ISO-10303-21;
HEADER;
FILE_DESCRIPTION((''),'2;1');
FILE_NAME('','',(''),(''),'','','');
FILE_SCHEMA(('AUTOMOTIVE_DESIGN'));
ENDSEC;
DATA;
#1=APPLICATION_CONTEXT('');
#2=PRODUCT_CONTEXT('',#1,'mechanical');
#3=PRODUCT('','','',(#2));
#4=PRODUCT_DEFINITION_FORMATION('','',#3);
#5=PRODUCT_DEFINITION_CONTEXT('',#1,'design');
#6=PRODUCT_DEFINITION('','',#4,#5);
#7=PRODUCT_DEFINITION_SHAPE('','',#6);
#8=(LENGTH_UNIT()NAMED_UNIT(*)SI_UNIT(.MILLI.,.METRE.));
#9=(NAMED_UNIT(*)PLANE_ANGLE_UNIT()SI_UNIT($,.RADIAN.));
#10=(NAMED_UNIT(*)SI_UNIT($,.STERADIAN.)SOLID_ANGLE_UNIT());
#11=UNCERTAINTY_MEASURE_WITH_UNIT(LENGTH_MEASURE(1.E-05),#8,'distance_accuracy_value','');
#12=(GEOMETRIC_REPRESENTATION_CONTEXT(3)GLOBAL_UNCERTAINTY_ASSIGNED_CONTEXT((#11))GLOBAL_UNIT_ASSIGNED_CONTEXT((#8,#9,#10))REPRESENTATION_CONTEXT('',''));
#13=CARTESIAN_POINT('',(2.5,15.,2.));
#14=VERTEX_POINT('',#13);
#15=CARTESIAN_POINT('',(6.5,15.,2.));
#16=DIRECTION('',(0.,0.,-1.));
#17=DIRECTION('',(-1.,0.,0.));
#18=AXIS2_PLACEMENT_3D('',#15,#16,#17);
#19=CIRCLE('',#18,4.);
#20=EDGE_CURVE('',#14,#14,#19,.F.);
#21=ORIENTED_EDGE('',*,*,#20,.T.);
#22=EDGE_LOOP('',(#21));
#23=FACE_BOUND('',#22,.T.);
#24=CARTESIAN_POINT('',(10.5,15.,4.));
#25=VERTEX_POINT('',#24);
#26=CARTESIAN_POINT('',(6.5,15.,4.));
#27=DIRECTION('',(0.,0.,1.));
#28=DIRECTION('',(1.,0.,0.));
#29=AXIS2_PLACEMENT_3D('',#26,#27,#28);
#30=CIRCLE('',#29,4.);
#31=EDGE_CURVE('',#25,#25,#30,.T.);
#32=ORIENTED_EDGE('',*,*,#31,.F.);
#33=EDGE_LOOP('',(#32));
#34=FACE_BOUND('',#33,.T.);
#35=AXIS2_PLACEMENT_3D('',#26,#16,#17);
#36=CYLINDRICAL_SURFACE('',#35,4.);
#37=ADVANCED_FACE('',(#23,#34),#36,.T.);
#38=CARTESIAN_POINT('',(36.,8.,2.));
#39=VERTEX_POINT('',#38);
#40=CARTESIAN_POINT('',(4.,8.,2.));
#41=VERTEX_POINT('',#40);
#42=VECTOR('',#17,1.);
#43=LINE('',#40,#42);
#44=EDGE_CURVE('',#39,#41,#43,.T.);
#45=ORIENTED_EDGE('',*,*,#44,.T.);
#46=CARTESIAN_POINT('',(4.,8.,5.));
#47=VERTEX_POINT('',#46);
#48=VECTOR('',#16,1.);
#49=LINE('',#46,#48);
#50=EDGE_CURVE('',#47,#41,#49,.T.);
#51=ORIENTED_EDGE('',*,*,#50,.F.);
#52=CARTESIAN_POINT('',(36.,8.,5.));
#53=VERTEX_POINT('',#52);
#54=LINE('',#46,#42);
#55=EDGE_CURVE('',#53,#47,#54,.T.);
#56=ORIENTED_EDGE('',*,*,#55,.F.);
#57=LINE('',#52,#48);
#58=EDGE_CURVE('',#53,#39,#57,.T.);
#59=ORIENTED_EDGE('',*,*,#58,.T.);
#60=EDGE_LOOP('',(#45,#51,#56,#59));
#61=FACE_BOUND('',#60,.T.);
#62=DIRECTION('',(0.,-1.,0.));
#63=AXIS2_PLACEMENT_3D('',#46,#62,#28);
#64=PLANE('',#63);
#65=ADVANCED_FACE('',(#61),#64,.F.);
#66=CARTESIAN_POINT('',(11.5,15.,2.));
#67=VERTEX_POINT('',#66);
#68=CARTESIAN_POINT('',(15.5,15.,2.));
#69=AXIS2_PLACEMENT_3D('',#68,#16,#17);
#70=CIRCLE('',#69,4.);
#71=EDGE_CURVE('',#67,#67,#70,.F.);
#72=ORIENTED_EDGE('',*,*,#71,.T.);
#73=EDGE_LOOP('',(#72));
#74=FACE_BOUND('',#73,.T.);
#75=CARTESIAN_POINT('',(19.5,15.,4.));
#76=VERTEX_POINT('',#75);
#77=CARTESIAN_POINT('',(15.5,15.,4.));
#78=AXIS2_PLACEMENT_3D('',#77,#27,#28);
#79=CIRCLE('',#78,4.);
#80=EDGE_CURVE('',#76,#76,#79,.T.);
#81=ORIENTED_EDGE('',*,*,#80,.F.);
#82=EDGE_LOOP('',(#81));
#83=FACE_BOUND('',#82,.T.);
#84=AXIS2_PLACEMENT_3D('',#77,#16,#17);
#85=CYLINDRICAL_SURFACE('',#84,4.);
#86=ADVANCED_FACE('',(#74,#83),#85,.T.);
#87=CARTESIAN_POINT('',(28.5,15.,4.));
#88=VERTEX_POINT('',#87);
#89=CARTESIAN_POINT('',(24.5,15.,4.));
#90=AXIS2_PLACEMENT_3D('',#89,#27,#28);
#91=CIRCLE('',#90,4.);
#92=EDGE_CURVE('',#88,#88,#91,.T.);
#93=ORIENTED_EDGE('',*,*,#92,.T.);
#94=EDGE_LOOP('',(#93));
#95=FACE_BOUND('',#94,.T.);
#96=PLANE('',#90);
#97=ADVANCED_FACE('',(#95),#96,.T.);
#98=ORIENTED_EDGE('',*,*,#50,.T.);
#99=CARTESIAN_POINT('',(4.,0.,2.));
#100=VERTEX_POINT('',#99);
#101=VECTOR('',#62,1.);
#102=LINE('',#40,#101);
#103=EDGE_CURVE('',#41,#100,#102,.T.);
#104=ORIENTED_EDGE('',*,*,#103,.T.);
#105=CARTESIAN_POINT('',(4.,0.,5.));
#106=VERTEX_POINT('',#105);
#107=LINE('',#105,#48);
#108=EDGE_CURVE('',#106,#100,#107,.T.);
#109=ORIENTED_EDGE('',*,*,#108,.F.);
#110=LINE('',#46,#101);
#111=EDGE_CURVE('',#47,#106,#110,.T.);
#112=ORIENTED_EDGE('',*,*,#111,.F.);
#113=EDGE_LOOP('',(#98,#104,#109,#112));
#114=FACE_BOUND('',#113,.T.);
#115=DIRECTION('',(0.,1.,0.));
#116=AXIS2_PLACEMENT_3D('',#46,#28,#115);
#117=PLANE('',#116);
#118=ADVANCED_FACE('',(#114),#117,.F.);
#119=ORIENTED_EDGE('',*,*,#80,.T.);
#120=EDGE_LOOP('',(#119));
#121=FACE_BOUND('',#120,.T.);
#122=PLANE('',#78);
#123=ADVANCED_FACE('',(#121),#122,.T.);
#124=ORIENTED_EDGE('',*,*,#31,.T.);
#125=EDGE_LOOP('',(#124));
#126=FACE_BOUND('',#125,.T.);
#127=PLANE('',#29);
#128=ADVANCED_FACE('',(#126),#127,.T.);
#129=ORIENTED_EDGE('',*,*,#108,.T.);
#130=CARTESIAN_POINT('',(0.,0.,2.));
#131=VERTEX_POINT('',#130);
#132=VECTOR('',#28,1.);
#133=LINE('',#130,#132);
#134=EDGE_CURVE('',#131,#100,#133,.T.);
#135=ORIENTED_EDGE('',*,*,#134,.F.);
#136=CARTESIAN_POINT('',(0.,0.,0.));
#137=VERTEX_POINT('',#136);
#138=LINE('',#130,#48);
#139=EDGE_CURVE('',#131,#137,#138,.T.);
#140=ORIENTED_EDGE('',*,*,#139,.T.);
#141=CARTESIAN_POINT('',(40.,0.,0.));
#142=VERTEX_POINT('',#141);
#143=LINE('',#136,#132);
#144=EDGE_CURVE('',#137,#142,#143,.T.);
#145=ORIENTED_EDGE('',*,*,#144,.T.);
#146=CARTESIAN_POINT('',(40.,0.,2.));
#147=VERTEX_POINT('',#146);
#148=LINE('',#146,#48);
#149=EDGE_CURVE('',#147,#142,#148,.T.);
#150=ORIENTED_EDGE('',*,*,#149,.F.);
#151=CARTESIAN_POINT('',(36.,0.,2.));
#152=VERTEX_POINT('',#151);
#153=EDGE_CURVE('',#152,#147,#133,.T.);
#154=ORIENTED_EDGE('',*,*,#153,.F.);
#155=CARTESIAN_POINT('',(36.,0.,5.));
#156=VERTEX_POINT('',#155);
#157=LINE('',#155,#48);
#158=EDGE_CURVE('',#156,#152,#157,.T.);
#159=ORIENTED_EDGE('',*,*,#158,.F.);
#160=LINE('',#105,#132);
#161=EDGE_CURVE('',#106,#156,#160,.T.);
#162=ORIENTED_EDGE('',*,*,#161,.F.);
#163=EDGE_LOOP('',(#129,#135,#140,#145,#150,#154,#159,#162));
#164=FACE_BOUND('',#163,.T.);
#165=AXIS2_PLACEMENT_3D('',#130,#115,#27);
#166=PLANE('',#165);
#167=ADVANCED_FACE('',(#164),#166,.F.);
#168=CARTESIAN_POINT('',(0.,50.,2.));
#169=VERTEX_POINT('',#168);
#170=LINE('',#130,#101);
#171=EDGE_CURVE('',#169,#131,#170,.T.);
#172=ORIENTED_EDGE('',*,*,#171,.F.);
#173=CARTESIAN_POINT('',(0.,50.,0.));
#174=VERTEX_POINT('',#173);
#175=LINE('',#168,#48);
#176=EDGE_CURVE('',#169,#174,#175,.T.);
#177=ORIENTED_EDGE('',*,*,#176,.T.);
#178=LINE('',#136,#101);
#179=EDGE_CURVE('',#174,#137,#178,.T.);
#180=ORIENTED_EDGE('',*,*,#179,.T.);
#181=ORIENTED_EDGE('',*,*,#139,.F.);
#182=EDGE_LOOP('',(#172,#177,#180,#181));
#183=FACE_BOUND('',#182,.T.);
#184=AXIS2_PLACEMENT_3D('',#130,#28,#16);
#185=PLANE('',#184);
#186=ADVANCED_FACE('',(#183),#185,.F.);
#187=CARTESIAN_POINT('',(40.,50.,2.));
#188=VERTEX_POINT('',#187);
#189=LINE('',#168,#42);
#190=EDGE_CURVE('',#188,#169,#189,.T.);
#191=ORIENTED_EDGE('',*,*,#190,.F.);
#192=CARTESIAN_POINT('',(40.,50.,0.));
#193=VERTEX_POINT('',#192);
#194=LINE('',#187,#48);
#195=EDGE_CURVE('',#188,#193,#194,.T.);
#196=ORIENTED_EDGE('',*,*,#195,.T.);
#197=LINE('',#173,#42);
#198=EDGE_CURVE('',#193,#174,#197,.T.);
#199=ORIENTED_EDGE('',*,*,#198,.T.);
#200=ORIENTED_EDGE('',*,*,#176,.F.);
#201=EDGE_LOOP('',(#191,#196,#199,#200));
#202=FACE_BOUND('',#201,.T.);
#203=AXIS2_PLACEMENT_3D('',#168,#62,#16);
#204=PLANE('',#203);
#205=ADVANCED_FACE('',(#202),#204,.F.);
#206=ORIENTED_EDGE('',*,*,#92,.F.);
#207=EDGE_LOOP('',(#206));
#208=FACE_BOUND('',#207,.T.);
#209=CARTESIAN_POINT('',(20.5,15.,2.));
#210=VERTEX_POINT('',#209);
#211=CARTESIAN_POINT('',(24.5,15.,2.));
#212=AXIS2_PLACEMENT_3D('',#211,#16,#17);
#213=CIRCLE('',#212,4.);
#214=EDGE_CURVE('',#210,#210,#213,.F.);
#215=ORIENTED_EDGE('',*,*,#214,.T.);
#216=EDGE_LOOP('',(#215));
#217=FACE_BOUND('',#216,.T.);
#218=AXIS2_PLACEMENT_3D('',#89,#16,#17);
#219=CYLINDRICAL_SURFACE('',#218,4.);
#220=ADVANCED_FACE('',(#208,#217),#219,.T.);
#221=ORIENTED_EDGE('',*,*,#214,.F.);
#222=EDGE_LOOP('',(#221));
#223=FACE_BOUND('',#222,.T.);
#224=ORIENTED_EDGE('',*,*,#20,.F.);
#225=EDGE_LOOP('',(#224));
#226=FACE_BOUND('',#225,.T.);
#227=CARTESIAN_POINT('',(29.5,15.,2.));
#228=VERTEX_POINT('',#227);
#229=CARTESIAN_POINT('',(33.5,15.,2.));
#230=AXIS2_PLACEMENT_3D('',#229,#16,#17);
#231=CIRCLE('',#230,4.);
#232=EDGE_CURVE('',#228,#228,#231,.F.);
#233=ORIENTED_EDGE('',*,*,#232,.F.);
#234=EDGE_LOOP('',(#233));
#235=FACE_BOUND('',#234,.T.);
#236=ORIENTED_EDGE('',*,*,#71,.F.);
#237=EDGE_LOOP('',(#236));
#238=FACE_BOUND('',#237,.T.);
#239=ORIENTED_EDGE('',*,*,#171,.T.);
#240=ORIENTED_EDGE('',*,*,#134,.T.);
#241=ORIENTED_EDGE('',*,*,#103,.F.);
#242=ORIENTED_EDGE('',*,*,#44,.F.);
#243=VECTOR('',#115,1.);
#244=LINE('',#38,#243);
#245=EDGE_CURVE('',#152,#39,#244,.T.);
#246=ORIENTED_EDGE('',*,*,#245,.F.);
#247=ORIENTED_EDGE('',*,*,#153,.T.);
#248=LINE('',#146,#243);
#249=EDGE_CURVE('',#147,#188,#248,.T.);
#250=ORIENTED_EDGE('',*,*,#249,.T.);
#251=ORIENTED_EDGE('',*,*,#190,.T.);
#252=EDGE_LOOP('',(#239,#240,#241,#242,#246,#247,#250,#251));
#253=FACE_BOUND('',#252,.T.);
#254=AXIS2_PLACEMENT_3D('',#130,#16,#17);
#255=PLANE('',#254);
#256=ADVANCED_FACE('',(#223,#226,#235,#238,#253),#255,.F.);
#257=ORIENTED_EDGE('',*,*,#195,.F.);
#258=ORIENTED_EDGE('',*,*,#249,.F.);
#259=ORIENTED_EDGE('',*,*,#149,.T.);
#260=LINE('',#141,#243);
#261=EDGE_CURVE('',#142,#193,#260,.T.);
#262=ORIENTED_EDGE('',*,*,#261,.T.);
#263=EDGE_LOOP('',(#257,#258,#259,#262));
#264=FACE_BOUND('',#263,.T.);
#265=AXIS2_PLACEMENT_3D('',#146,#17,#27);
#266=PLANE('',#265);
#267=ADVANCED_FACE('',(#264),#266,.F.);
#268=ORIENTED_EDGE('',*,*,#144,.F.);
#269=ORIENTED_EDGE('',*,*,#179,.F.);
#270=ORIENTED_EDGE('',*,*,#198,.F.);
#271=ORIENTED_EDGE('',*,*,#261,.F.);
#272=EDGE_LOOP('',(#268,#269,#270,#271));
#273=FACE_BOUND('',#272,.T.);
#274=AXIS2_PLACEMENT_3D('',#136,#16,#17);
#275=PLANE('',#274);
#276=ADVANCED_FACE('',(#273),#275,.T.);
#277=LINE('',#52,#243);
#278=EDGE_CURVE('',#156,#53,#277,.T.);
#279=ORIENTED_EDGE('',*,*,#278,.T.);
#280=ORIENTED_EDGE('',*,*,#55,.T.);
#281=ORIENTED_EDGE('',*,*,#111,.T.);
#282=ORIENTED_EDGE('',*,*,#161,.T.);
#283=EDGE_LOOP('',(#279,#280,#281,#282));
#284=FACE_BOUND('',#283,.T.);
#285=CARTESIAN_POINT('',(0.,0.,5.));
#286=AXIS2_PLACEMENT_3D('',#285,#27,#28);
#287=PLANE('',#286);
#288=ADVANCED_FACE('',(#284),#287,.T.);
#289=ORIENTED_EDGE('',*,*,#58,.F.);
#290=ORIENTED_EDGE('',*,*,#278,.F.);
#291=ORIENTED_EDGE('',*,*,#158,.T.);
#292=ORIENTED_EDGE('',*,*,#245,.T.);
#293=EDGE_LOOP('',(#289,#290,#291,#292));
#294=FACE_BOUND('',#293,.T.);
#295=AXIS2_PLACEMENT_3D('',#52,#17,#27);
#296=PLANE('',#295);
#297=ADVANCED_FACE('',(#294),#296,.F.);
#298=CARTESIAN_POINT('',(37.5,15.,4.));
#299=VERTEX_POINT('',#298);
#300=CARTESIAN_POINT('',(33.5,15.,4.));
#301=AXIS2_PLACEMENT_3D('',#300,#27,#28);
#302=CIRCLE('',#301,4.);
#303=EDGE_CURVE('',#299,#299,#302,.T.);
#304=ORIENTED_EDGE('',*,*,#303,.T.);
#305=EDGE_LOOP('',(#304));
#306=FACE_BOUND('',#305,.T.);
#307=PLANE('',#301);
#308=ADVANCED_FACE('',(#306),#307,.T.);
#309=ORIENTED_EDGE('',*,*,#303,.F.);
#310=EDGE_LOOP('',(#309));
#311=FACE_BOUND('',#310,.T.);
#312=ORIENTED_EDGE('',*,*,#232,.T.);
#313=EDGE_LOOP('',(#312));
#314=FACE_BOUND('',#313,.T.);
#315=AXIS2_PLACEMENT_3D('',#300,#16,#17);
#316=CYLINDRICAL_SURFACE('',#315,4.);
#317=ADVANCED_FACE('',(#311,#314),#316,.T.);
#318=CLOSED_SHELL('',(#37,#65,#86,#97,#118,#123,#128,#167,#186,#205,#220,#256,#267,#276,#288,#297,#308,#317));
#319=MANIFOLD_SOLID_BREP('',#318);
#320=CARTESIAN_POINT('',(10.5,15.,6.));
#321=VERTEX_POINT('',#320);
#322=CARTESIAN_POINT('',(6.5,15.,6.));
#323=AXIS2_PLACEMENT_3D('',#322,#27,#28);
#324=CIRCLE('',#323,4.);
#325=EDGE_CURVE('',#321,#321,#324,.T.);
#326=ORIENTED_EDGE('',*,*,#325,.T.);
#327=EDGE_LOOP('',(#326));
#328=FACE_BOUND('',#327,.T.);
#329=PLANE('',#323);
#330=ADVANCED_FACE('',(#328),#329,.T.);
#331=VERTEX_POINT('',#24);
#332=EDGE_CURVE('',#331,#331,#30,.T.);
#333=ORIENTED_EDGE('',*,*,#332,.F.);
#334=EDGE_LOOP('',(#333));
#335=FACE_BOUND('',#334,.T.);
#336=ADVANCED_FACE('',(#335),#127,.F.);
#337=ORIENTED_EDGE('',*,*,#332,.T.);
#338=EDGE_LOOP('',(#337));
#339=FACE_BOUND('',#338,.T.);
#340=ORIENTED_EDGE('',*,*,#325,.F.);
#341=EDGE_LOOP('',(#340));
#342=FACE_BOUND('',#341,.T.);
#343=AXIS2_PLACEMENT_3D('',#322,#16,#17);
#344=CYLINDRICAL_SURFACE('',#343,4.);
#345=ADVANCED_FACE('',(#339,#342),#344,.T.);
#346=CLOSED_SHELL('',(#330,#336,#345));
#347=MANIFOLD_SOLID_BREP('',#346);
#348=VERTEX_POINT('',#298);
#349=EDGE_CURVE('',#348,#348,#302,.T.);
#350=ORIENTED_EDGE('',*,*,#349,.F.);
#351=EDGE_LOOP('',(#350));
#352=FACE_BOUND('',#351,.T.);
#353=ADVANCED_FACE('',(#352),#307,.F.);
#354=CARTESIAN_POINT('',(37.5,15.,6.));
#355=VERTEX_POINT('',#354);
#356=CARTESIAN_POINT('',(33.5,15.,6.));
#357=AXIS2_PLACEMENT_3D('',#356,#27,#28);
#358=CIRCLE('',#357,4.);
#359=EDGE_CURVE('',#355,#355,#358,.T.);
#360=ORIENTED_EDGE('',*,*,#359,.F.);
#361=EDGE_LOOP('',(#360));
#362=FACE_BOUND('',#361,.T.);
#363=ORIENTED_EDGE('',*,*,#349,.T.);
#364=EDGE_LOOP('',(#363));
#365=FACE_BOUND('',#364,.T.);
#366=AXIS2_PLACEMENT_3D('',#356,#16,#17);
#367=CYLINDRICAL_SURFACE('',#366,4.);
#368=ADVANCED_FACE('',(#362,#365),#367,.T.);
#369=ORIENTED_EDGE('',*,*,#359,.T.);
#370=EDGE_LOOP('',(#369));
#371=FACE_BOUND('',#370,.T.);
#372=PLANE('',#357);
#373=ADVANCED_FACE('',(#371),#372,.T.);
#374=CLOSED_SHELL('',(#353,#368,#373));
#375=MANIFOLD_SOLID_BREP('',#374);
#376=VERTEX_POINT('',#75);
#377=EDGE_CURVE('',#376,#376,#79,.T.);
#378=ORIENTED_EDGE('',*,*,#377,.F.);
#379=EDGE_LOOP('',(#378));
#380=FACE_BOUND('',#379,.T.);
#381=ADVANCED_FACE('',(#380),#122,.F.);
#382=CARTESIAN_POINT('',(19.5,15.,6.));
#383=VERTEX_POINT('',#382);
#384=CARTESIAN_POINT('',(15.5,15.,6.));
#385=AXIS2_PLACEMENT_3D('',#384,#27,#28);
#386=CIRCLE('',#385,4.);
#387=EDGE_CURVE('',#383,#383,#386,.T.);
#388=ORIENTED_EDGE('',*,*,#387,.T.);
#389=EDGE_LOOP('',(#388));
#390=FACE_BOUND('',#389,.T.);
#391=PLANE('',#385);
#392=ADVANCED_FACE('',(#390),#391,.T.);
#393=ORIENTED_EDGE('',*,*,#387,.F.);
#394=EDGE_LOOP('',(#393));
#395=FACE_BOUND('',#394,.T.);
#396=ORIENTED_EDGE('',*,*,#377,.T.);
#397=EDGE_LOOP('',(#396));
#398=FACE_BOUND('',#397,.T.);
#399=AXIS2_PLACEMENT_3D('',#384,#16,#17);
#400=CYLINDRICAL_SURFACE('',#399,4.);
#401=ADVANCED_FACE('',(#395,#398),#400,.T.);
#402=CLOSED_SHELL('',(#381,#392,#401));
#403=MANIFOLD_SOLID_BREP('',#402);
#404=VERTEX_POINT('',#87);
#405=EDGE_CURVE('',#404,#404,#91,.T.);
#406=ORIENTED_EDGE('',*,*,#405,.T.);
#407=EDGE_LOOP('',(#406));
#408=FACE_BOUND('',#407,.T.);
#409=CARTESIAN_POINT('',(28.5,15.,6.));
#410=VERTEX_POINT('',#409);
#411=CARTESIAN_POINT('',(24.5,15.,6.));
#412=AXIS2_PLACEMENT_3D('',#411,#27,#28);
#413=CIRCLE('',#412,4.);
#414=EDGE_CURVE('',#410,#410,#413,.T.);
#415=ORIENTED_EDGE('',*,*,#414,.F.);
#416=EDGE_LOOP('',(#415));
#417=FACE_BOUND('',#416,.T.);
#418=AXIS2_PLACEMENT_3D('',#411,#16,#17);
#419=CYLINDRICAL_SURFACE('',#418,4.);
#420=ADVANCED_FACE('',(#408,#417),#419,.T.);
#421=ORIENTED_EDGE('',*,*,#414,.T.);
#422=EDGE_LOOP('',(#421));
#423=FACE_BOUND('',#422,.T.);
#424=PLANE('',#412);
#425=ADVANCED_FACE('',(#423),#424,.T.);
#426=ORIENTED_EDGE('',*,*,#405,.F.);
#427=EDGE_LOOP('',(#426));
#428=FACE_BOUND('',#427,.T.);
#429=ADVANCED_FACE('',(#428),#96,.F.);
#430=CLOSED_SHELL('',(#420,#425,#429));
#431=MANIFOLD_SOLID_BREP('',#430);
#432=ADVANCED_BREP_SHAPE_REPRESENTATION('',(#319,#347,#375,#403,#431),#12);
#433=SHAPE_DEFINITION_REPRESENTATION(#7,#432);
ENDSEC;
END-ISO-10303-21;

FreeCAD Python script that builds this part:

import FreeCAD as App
import Part
import Sketcher
from FreeCAD import Vector


def add_polygon(sketch, points):
    """Adds a closed chain of lines whose ends are joined by coincident constraints."""
    first, n = sketch.GeometryCount, len(points)
    for a, b in zip(points, points[1:] + points[:1]):
        sketch.addGeometry(Part.LineSegment(App.Vector(*a, 0), App.Vector(*b, 0)), False)
    for i in range(n):
        sketch.addConstraint(Sketcher.Constraint("Coincident", first + i, 2, first + (i + 1) % n, 1))

doc = App.newDocument("Part")
body = doc.addObject("PartDesign::Body", "Body")

# Sketch on XY plane
sketch1 = body.newObject("Sketcher::SketchObject", "Sketch")
sketch1.AttachmentSupport = (doc.getObject("XY_Plane"), [""])
sketch1.MapMode = "FlatFace"
add_polygon(sketch1, [(0, 50), (0, 0), (40, 0), (40, 50)])  # lines 0-3
sketch1.addConstraint([
    Sketcher.Constraint("Vertical", 0),
    Sketcher.Constraint("Horizontal", 1),
    Sketcher.Constraint("Vertical", 2),
    Sketcher.Constraint("Horizontal", 3),
    Sketcher.Constraint("Coincident", 0, 2, -1, 1),
    Sketcher.Constraint("DistanceX", 1, 1, 1, 2, 40.0),
    Sketcher.Constraint("DistanceY", 0, 2, 0, 1, 50.0),
])
pad1 = body.newObject("PartDesign::Pad", "Pad")
pad1.Profile = sketch1
pad1.Length = 2

# Sketch on XY plane
sketch2 = body.newObject("Sketcher::SketchObject", "Sketch001")
sketch2.AttachmentSupport = (doc.getObject("XY_Plane"), [""])
sketch2.MapMode = "FlatFace"
sketch2.AttachmentOffset = App.Placement(Vector(0, 0, 2), App.Rotation())
sketch2.addGeometry([
    Part.Circle(Vector(6.5, 15, 0), Vector(0, 0, 1), 4),
    Part.Circle(Vector(15.5, 15, 0), Vector(0, 0, 1), 4),
    Part.Circle(Vector(24.5, 15, 0), Vector(0, 0, 1), 4),
    Part.Circle(Vector(33.5, 15, 0), Vector(0, 0, 1), 4),
], False)
sketch2.addConstraint([
    Sketcher.Constraint("Equal", 0, 1),
    Sketcher.Constraint("Equal", 1, 2),
    Sketcher.Constraint("Equal", 2, 3),
    Sketcher.Constraint("Horizontal", 0, 3, 1, 3),
    Sketcher.Constraint("Horizontal", 1, 3, 2, 3),
    Sketcher.Constraint("Horizontal", 2, 3, 3, 3),
    Sketcher.Constraint("Diameter", 0, 8.0),
    Sketcher.Constraint("DistanceY", -1, 1, 0, 3, 15.0),
    Sketcher.Constraint("DistanceX", 0, 3, 1, 3, 9.0),
    Sketcher.Constraint("DistanceX", 1, 3, 2, 3, 9.0),
    Sketcher.Constraint("DistanceX", 2, 3, 3, 3, 9.0),
    Sketcher.Constraint("DistanceX", -1, 1, 0, 3, 6.5),
])
pad2 = body.newObject("PartDesign::Pad", "Pad001")
pad2.Profile = sketch2
pad2.Length = 2

# Sketch on XY plane
sketch3 = body.newObject("Sketcher::SketchObject", "Sketch002")
sketch3.AttachmentSupport = (doc.getObject("XY_Plane"), [""])
sketch3.MapMode = "FlatFace"
sketch3.AttachmentOffset = App.Placement(Vector(0, 0, 2), App.Rotation())
add_polygon(sketch3, [(4, 8), (4, 0), (36, 0), (36, 8)])  # lines 0-3
sketch3.addConstraint([
    Sketcher.Constraint("Vertical", 0),
    Sketcher.Constraint("Horizontal", 1),
    Sketcher.Constraint("Vertical", 2),
    Sketcher.Constraint("Horizontal", 3),
    Sketcher.Constraint("PointOnObject", 0, 2, -1),
    Sketcher.Constraint("DistanceX", 1, 1, 1, 2, 32.0),
    Sketcher.Constraint("DistanceY", 0, 2, 0, 1, 8.0),
    Sketcher.Constraint("DistanceX", -1, 1, 0, 2, 4.0),
])
pad3 = body.newObject("PartDesign::Pad", "Pad002")
pad3.Profile = sketch3
pad3.Length = 3
body2 = doc.addObject("PartDesign::Body", "Body001")

# Sketch on XY plane
sketch4 = body2.newObject("Sketcher::SketchObject", "Sketch003")
sketch4.AttachmentSupport = (doc.getObject("XY_Plane001"), [""])
sketch4.MapMode = "FlatFace"
sketch4.AttachmentOffset = App.Placement(Vector(0, 0, 4), App.Rotation())
sketch4.addGeometry(Part.Circle(Vector(6.5, 15, 0), Vector(0, 0, 1), 4), False)
sketch4.addConstraint([
    Sketcher.Constraint("Diameter", 0, 8.0),
    Sketcher.Constraint("DistanceY", -1, 1, 0, 3, 15.0),
    Sketcher.Constraint("DistanceX", -1, 1, 0, 3, 6.5),
])
pad4 = body2.newObject("PartDesign::Pad", "Pad003")
pad4.Profile = sketch4
pad4.Length = 2
body3 = doc.addObject("PartDesign::Body", "Body002")

# Sketch on XY plane
sketch5 = body3.newObject("Sketcher::SketchObject", "Sketch004")
sketch5.AttachmentSupport = (doc.getObject("XY_Plane002"), [""])
sketch5.MapMode = "FlatFace"
sketch5.AttachmentOffset = App.Placement(Vector(0, 0, 4), App.Rotation())
sketch5.addGeometry(Part.Circle(Vector(15.5, 15, 0), Vector(0, 0, 1), 4), False)
sketch5.addConstraint([
    Sketcher.Constraint("Diameter", 0, 8.0),
    Sketcher.Constraint("DistanceY", -1, 1, 0, 3, 15.0),
    Sketcher.Constraint("DistanceX", -1, 1, 0, 3, 15.5),
])
pad5 = body3.newObject("PartDesign::Pad", "Pad004")
pad5.Profile = sketch5
pad5.Length = 2
body4 = doc.addObject("PartDesign::Body", "Body003")

# Sketch on XY plane
sketch6 = body4.newObject("Sketcher::SketchObject", "Sketch005")
sketch6.AttachmentSupport = (doc.getObject("XY_Plane003"), [""])
sketch6.MapMode = "FlatFace"
sketch6.AttachmentOffset = App.Placement(Vector(0, 0, 4), App.Rotation())
sketch6.addGeometry(Part.Circle(Vector(24.5, 15, 0), Vector(0, 0, 1), 4), False)
sketch6.addConstraint([
    Sketcher.Constraint("Diameter", 0, 8.0),
    Sketcher.Constraint("DistanceY", -1, 1, 0, 3, 15.0),
    Sketcher.Constraint("DistanceX", -1, 1, 0, 3, 24.5),
])
pad6 = body4.newObject("PartDesign::Pad", "Pad005")
pad6.Profile = sketch6
pad6.Length = 2
body5 = doc.addObject("PartDesign::Body", "Body004")

# Sketch on XY plane
sketch7 = body5.newObject("Sketcher::SketchObject", "Sketch006")
sketch7.AttachmentSupport = (doc.getObject("XY_Plane004"), [""])
sketch7.MapMode = "FlatFace"
sketch7.AttachmentOffset = App.Placement(Vector(0, 0, 4), App.Rotation())
sketch7.addGeometry(Part.Circle(Vector(33.5, 15, 0), Vector(0, 0, 1), 4), False)
sketch7.addConstraint([
    Sketcher.Constraint("Diameter", 0, 8.0),
    Sketcher.Constraint("DistanceY", -1, 1, 0, 3, 15.0),
    Sketcher.Constraint("DistanceX", -1, 1, 0, 3, 33.5),
])
pad7 = body5.newObject("PartDesign::Pad", "Pad006")
pad7.Profile = sketch7
pad7.Length = 2

doc.recompute()
